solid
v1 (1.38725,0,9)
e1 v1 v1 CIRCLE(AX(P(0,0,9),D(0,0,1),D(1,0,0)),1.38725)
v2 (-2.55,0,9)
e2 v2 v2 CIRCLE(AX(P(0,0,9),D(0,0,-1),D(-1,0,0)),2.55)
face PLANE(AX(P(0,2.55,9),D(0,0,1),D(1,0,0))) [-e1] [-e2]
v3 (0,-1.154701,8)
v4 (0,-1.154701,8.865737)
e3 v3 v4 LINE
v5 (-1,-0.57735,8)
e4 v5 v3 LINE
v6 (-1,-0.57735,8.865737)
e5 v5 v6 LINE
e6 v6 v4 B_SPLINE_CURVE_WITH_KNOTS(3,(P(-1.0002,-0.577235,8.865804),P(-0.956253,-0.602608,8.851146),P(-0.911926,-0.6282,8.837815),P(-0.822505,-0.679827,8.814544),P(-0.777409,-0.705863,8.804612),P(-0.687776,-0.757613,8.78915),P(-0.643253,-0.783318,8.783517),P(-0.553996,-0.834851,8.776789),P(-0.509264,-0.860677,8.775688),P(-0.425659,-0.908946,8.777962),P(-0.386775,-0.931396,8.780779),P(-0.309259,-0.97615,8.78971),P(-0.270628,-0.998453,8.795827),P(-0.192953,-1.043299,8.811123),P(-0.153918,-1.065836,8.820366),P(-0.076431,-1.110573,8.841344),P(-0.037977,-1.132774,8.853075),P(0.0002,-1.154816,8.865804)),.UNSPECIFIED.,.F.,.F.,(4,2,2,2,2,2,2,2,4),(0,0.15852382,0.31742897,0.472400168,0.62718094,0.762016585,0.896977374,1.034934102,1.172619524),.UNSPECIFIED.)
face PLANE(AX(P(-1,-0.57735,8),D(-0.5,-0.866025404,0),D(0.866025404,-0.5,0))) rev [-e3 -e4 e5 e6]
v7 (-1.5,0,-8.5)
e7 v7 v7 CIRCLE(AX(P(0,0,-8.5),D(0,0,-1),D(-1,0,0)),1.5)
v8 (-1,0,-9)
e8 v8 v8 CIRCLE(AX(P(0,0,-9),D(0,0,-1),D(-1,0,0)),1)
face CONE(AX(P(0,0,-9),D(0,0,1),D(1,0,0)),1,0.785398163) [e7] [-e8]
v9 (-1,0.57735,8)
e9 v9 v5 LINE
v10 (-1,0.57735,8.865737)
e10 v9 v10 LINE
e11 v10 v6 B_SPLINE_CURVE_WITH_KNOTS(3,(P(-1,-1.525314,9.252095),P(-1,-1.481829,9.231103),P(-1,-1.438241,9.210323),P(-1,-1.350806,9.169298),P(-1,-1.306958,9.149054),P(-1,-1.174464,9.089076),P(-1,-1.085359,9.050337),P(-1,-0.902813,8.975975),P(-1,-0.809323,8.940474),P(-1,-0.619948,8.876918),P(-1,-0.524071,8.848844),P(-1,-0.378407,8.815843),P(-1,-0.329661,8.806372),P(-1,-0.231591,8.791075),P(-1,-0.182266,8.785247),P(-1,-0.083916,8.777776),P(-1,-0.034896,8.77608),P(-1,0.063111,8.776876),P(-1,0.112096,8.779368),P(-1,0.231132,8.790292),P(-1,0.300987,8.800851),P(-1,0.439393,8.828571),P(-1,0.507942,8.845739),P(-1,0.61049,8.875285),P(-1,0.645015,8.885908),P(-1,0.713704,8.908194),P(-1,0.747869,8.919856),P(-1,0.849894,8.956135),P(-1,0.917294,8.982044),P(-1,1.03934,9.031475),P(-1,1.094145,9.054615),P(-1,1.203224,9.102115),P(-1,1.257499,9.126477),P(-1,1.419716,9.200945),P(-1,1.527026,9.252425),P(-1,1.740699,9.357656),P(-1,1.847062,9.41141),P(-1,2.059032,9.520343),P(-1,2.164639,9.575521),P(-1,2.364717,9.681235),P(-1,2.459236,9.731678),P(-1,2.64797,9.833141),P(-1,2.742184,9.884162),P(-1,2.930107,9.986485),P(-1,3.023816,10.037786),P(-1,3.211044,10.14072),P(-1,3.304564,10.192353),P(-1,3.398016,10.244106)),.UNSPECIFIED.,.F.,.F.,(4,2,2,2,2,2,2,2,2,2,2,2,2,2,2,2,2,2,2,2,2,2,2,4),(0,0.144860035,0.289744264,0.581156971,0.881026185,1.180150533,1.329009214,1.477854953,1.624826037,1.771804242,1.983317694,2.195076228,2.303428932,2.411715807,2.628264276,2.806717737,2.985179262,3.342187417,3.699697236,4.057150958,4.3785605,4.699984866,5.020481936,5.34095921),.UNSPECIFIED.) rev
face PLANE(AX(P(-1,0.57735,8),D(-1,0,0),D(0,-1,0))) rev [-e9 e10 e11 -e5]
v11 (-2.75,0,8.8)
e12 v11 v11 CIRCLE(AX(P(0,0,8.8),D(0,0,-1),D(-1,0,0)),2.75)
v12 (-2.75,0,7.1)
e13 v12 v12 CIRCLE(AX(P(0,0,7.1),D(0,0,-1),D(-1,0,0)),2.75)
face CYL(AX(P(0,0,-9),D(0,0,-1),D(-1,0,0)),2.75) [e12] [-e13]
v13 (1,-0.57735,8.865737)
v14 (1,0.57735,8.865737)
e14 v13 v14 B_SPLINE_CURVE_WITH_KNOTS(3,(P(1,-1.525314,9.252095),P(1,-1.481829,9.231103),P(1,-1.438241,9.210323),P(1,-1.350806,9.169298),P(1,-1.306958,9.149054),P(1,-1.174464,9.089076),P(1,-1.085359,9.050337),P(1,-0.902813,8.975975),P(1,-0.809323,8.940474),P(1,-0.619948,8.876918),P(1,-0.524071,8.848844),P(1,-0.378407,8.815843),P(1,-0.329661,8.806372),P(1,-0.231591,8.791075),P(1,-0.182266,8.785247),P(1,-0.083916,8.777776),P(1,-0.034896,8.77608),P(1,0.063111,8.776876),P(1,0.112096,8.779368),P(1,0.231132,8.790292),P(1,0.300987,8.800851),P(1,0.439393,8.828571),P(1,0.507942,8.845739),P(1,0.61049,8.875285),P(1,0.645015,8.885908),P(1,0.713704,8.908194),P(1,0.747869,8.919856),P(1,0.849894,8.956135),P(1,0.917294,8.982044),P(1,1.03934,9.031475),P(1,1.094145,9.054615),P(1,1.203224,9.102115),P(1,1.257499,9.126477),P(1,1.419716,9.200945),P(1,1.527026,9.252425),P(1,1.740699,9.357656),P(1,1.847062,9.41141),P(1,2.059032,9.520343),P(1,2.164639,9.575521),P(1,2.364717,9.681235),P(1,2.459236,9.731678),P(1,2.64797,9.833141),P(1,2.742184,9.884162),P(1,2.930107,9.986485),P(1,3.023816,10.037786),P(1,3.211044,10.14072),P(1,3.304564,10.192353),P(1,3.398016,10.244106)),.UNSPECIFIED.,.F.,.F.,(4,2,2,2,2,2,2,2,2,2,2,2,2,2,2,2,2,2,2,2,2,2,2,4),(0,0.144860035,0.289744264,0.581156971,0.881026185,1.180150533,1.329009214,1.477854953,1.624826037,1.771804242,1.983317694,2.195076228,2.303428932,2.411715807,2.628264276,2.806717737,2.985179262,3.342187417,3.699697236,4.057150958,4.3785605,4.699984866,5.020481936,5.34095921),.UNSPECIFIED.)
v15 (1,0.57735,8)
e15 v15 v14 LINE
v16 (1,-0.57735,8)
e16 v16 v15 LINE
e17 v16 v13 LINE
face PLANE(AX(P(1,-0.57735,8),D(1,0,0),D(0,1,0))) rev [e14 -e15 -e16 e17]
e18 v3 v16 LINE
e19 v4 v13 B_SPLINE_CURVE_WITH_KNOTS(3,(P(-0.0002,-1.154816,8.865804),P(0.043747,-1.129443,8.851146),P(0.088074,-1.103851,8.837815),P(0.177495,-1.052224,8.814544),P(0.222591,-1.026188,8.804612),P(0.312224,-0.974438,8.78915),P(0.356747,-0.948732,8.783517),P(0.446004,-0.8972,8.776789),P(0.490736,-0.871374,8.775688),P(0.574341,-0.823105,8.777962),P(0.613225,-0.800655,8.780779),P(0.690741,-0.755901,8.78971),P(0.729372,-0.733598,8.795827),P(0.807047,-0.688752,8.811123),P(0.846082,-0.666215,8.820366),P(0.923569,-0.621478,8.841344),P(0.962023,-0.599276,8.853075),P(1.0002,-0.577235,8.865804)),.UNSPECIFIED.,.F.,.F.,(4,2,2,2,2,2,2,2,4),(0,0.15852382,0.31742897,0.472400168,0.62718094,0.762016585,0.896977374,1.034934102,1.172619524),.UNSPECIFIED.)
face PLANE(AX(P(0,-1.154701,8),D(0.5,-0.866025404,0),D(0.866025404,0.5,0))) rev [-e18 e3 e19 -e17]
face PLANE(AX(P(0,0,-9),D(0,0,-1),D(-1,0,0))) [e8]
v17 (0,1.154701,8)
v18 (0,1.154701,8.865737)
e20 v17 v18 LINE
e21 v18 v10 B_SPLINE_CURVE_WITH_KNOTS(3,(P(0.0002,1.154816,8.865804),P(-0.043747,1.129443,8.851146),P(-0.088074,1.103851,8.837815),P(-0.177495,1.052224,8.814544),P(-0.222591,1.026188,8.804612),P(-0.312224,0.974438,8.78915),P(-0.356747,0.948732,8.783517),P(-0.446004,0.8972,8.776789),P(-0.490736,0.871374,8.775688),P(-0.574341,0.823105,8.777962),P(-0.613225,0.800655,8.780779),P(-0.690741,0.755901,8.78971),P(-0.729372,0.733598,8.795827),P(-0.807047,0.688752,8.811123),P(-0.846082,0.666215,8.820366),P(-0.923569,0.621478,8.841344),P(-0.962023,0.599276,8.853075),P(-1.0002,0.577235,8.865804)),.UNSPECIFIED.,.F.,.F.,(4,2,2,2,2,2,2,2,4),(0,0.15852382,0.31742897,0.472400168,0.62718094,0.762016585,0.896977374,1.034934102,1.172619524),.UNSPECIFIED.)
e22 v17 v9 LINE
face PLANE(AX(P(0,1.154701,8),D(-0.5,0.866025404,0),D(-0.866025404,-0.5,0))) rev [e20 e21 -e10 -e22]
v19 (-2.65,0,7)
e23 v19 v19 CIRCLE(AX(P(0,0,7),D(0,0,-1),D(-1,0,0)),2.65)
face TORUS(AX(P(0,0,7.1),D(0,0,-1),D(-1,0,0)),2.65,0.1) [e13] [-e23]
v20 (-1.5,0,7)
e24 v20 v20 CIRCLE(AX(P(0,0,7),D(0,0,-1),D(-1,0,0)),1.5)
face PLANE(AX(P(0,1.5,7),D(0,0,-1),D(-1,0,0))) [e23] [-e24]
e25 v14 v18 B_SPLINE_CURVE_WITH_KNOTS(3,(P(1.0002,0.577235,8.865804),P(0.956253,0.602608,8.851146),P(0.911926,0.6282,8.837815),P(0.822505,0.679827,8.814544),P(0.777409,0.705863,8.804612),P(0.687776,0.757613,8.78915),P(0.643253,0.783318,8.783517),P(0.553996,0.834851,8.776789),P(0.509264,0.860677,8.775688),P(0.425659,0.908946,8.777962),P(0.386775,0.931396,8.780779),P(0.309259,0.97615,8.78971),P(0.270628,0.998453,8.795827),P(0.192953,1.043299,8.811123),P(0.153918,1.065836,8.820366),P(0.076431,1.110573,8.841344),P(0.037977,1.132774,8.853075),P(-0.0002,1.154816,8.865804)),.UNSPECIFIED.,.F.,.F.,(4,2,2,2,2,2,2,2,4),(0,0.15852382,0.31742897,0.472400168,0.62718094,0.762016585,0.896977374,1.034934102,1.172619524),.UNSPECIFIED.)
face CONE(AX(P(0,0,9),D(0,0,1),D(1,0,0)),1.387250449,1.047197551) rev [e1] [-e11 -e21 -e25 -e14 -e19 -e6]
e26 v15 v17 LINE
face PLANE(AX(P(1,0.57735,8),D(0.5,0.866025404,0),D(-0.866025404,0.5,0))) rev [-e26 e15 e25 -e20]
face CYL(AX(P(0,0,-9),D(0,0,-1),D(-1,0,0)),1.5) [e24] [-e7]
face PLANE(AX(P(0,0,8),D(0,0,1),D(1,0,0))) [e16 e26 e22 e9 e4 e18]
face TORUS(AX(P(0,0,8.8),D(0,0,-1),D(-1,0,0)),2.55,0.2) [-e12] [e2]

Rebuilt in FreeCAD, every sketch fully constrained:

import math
import FreeCAD as App
import Part
import Sketcher

V = App.Vector
Q = App.Units.Quantity


def add_polygon(sketch, points):
    """Adds a closed chain of lines whose ends are joined by coincident constraints."""
    first, n = sketch.GeometryCount, len(points)
    for a, b in zip(points, points[1:] + points[:1]):
        sketch.addGeometry(Part.LineSegment(App.Vector(*a, 0), App.Vector(*b, 0)), False)
    for i in range(n):
        sketch.addConstraint(Sketcher.Constraint("Coincident", first + i, 2, first + (i + 1) % n, 1))

doc = App.newDocument("Part")
body = doc.addObject("PartDesign::Body", "Body")

sketch1 = body.newObject("Sketcher::SketchObject", "Sketch")
sketch1.AttachmentSupport = (doc.getObject("YZ_Plane"), [""])
sketch1.MapMode = "FlatFace"
sketch1.addGeometry(Part.LineSegment(V(0, -9, 0), V(1, -9, 0)), False)
sketch1.addGeometry(Part.LineSegment(V(1, -9, 0), V(1.5, -8.5, 0)), False)
sketch1.addGeometry(Part.LineSegment(V(1.5, -8.5, 0), V(1.5, 7, 0)), False)
sketch1.addGeometry(Part.LineSegment(V(1.5, 7, 0), V(2.65, 7, 0)), False)
sketch1.addGeometry(Part.ArcOfCircle(Part.Circle(V(2.65, 7.1, 0), V(0, 0, 1), 0.1), math.radians(-90), math.radians(0)), False)
sketch1.addGeometry(Part.LineSegment(V(2.75, 7.1, 0), V(2.75, 8.8, 0)), False)
sketch1.addGeometry(Part.ArcOfCircle(Part.Circle(V(2.55, 8.8, 0), V(0, 0, 1), 0.2), math.radians(0), math.radians(90)), False)
sketch1.addGeometry(Part.LineSegment(V(2.55, 9, 0), V(0, 9, 0)), False)
sketch1.addGeometry(Part.LineSegment(V(0, 9, 0), V(0, -9, 0)), False)
sketch1.addConstraint(Sketcher.Constraint("Coincident", 0, 2, 1, 1))
sketch1.addConstraint(Sketcher.Constraint("Coincident", 1, 2, 2, 1))
sketch1.addConstraint(Sketcher.Constraint("Coincident", 2, 2, 3, 1))
sketch1.addConstraint(Sketcher.Constraint("Tangent", 3, 2, 4, 1))
sketch1.addConstraint(Sketcher.Constraint("Tangent", 4, 2, 5, 1))
sketch1.addConstraint(Sketcher.Constraint("Tangent", 5, 2, 6, 1))
sketch1.addConstraint(Sketcher.Constraint("Tangent", 6, 2, 7, 1))
sketch1.addConstraint(Sketcher.Constraint("Coincident", 7, 2, 8, 1))
sketch1.addConstraint(Sketcher.Constraint("Coincident", 8, 2, 0, 1))
sketch1.addConstraint(Sketcher.Constraint("Horizontal", 0))
sketch1.addConstraint(Sketcher.Constraint("Vertical", 2))
sketch1.addConstraint(Sketcher.Constraint("Horizontal", 3))
sketch1.addConstraint(Sketcher.Constraint("Vertical", 5))
sketch1.addConstraint(Sketcher.Constraint("Horizontal", 7))
sketch1.addConstraint(Sketcher.Constraint("Vertical", 8))
sketch1.addConstraint(Sketcher.Constraint("Symmetric", 7, 2, 8, 2, -1, 1))
sketch1.addConstraint(Sketcher.Constraint("Radius", 4, Q("0.1 mm")))
sketch1.addConstraint(Sketcher.Constraint("Radius", 6, Q("0.2 mm")))
sketch1.addConstraint(Sketcher.Constraint("DistanceX", 0, 1, 0, 2, Q("1 mm")))
sketch1.addConstraint(Sketcher.Constraint("DistanceY", 8, 2, 8, 1, Q("18 mm")))
sketch1.addConstraint(Sketcher.Constraint("Angle", 1, Q("45 deg")))
sketch1.addConstraint(Sketcher.Constraint("DistanceY", 2, 1, 2, 2, Q("15.5 mm")))
sketch1.addConstraint(Sketcher.Constraint("DistanceY", 5, 1, 5, 2, Q("1.7 mm")))
sketch1.addConstraint(Sketcher.Constraint("DistanceX", 3, 1, 3, 2, Q("1.15 mm")))
revolution = body.newObject("PartDesign::Revolution", "Revolution")
revolution.Profile = sketch1
revolution.ReferenceAxis = (sketch1, ["V_Axis"])
revolution.Angle = 360

sketch2 = body.newObject("Sketcher::SketchObject", "Sketch001")
sketch2.AttachmentSupport = (doc.getObject("XY_Plane"), [""])
sketch2.MapMode = "FlatFace"
sketch2.AttachmentOffset = App.Placement(V(0, 0, 9), App.Rotation())
add_polygon(sketch2, [(-1, 0.57735), (-1, -0.57735), (0, -1.154701), (1, -0.57735), (1, 0.57735), (0, 1.154701)])
sketch2.addConstraint(Sketcher.Constraint("Vertical", 0))
sketch2.addConstraint(Sketcher.Constraint("Vertical", 3))
sketch2.addConstraint(Sketcher.Constraint("Symmetric", 0, 2, 3, 2, -1, 1))
sketch2.addConstraint(Sketcher.Constraint("Symmetric", 1, 2, 4, 2, -1, 1))
sketch2.addConstraint(Sketcher.Constraint("PointOnObject", 1, 2, -2))
sketch2.addConstraint(Sketcher.Constraint("Parallel", 2, 5))
sketch2.addConstraint(Sketcher.Constraint("Horizontal", 0, 2, 2, 2))
sketch2.addConstraint(Sketcher.Constraint("Angle", 1, Q("-30 deg")))
sketch2.addConstraint(Sketcher.Constraint("DistanceX", 0, 2, -1, 1, Q("1 mm")))
sketch2.addConstraint(Sketcher.Constraint("DistanceY", 0, 2, 0, 1, Q("1.154701 mm")))
pocket1 = body.newObject("PartDesign::Pocket", "Pocket")
pocket1.Profile = sketch2
pocket1.Length = 1

sketch3 = body.newObject("Sketcher::SketchObject", "Sketch002")
sketch3.AttachmentSupport = (doc.getObject("YZ_Plane"), [""])
sketch3.MapMode = "FlatFace"
add_polygon(sketch3, [(0, 9), (-1.38725, 9), (0, 8.199071)])
sketch3.addConstraint(Sketcher.Constraint("Horizontal", 0))
sketch3.addConstraint(Sketcher.Constraint("Vertical", 2))
sketch3.addConstraint(Sketcher.Constraint("PointOnObject", 1, 2, -2))
sketch3.addConstraint(Sketcher.Constraint("Angle", 1, Q("-30 deg")))
sketch3.addConstraint(Sketcher.Constraint("DistanceY", -1, 1, 0, 2, Q("9 mm")))
sketch3.addConstraint(Sketcher.Constraint("DistanceX", 0, 2, 0, 1, Q("1.38725 mm")))
groove = body.newObject("PartDesign::Groove", "Groove")
groove.Profile = sketch3
groove.ReferenceAxis = (sketch3, ["V_Axis"])
groove.Angle = 360

doc.recompute()
